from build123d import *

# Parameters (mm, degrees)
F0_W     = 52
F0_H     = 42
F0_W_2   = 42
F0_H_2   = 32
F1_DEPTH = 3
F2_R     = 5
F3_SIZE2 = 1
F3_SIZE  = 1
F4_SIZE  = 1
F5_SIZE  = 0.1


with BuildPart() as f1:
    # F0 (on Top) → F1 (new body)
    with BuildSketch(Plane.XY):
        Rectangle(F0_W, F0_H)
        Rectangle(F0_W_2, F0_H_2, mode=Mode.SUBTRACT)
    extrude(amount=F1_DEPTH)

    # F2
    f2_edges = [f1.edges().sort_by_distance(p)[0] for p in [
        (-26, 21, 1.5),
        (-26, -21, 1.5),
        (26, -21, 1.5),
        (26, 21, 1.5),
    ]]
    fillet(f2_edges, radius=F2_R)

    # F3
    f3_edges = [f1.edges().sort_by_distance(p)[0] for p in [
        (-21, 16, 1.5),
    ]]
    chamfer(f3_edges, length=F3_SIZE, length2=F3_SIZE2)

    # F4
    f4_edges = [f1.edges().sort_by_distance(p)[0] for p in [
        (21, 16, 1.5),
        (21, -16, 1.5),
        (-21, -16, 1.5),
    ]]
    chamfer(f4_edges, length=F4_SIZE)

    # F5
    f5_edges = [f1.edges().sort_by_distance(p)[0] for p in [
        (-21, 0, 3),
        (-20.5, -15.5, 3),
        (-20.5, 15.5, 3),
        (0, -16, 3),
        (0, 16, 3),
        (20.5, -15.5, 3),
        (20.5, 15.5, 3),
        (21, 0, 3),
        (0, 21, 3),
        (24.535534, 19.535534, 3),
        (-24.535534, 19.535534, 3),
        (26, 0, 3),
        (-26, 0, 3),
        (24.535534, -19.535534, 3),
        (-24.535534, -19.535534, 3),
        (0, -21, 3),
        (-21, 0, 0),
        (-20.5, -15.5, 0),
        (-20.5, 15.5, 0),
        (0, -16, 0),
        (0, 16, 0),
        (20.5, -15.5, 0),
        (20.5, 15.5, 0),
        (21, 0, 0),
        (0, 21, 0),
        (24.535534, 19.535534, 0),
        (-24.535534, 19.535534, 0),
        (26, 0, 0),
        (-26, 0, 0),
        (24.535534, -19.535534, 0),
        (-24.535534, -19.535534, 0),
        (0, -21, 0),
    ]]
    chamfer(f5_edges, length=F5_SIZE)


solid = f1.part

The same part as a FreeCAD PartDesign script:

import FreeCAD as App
import Part
import Sketcher
from FreeCAD import Vector
Q = App.Units.Quantity


def edges_at(feature, points):
    """Names of the edges that pass closest to the given points."""
    edges = feature.Shape.Edges
    near = lambda p: min(range(len(edges)), key=lambda i: edges[i].distToShape(Part.Vertex(*p))[0])
    return sorted({f"Edge{near(p) + 1}" for p in points})


def add_polygon(sketch, points):
    """Adds a closed chain of lines whose ends are joined by coincident constraints."""
    first, n = sketch.GeometryCount, len(points)
    for a, b in zip(points, points[1:] + points[:1]):
        sketch.addGeometry(Part.LineSegment(App.Vector(*a, 0), App.Vector(*b, 0)), False)
    for i in range(n):
        sketch.addConstraint(Sketcher.Constraint("Coincident", first + i, 2, first + (i + 1) % n, 1))

doc = App.newDocument("Part")
body = doc.addObject("PartDesign::Body", "Body")

sketch1 = body.newObject("Sketcher::SketchObject", "Sketch")
sketch1.AttachmentSupport = (doc.getObject("XY_Plane"), [""])
sketch1.MapMode = "FlatFace"
add_polygon(sketch1, [(-26, 21), (-26, -21), (26, -21), (26, 21)])
add_polygon(sketch1, [(21, -16), (-21, -16), (-21, 16), (21, 16)])
sketch1.addConstraint(Sketcher.Constraint("Vertical", 0))
sketch1.addConstraint(Sketcher.Constraint("Horizontal", 1))
sketch1.addConstraint(Sketcher.Constraint("Vertical", 2))
sketch1.addConstraint(Sketcher.Constraint("Horizontal", 3))
sketch1.addConstraint(Sketcher.Constraint("Horizontal", 4))
sketch1.addConstraint(Sketcher.Constraint("Vertical", 5))
sketch1.addConstraint(Sketcher.Constraint("Horizontal", 6))
sketch1.addConstraint(Sketcher.Constraint("Vertical", 7))
sketch1.addConstraint(Sketcher.Constraint("Symmetric", 0, 2, 2, 2, -1, 1))
sketch1.addConstraint(Sketcher.Constraint("Symmetric", 4, 2, 6, 2, -1, 1))
sketch1.addConstraint(Sketcher.Constraint("Equal", 6, 0))
sketch1.addConstraint(Sketcher.Constraint("DistanceX", 1, 1, 1, 2, Q("52 mm")))
sketch1.addConstraint(Sketcher.Constraint("DistanceX", 4, 2, 4, 1, Q("42 mm")))
sketch1.addConstraint(Sketcher.Constraint("DistanceY", 5, 1, 5, 2, Q("32 mm")))
pad1 = body.newObject("PartDesign::Pad", "Pad")
pad1.Profile = sketch1
pad1.Length = 3
doc.recompute()

fillet = body.newObject("PartDesign::Fillet", "Fillet")
fillet.Base = (pad1, edges_at(pad1, [
    (-26, 21, 1.5),
    (-26, -21, 1.5),
    (26, -21, 1.5),
    (26, 21, 1.5),
]))
fillet.Radius = 5
doc.recompute()

chamfer = body.newObject("PartDesign::Chamfer", "Chamfer")
chamfer.Base = (fillet, edges_at(fillet, [(-21, 16, 1.5)]))
chamfer.ChamferType = "Two distances"
chamfer.Size = 1
chamfer.Size2 = 1
doc.recompute()

chamfer2 = body.newObject("PartDesign::Chamfer", "Chamfer001")
chamfer2.Base = (chamfer, edges_at(chamfer, [(21, 16, 1.5), (21, -16, 1.5), (-21, -16, 1.5)]))
chamfer2.Size = 1
doc.recompute()

chamfer3 = body.newObject("PartDesign::Chamfer", "Chamfer002")
chamfer3.Base = (chamfer2, edges_at(chamfer2, [
    (-21, 0, 3),
    (-20.5, -15.5, 3),
    (-20.5, 15.5, 3),
    (0, -16, 3),
    (0, 16, 3),
    (20.5, -15.5, 3),
    (20.5, 15.5, 3),
    (21, 0, 3),
    (0, 21, 3),
    (24.536, 19.536, 3),
    (-24.536, 19.536, 3),
    (26, 0, 3),
    (-26, 0, 3),
    (24.536, -19.536, 3),
    (-24.536, -19.536, 3),
    (0, -21, 3),
    (-21, 0, 0),
    (-20.5, -15.5, 0),
    (-20.5, 15.5, 0),
    (0, -16, 0),
    (0, 16, 0),
    (20.5, -15.5, 0),
    (20.5, 15.5, 0),
    (21, 0, 0),
    (0, 21, 0),
    (24.536, 19.536, 0),
    (-24.536, 19.536, 0),
    (26, 0, 0),
    (-26, 0, 0),
    (24.536, -19.536, 0),
    (-24.536, -19.536, 0),
    (0, -21, 0),
]))
chamfer3.Size = 0.1

doc.recompute()
